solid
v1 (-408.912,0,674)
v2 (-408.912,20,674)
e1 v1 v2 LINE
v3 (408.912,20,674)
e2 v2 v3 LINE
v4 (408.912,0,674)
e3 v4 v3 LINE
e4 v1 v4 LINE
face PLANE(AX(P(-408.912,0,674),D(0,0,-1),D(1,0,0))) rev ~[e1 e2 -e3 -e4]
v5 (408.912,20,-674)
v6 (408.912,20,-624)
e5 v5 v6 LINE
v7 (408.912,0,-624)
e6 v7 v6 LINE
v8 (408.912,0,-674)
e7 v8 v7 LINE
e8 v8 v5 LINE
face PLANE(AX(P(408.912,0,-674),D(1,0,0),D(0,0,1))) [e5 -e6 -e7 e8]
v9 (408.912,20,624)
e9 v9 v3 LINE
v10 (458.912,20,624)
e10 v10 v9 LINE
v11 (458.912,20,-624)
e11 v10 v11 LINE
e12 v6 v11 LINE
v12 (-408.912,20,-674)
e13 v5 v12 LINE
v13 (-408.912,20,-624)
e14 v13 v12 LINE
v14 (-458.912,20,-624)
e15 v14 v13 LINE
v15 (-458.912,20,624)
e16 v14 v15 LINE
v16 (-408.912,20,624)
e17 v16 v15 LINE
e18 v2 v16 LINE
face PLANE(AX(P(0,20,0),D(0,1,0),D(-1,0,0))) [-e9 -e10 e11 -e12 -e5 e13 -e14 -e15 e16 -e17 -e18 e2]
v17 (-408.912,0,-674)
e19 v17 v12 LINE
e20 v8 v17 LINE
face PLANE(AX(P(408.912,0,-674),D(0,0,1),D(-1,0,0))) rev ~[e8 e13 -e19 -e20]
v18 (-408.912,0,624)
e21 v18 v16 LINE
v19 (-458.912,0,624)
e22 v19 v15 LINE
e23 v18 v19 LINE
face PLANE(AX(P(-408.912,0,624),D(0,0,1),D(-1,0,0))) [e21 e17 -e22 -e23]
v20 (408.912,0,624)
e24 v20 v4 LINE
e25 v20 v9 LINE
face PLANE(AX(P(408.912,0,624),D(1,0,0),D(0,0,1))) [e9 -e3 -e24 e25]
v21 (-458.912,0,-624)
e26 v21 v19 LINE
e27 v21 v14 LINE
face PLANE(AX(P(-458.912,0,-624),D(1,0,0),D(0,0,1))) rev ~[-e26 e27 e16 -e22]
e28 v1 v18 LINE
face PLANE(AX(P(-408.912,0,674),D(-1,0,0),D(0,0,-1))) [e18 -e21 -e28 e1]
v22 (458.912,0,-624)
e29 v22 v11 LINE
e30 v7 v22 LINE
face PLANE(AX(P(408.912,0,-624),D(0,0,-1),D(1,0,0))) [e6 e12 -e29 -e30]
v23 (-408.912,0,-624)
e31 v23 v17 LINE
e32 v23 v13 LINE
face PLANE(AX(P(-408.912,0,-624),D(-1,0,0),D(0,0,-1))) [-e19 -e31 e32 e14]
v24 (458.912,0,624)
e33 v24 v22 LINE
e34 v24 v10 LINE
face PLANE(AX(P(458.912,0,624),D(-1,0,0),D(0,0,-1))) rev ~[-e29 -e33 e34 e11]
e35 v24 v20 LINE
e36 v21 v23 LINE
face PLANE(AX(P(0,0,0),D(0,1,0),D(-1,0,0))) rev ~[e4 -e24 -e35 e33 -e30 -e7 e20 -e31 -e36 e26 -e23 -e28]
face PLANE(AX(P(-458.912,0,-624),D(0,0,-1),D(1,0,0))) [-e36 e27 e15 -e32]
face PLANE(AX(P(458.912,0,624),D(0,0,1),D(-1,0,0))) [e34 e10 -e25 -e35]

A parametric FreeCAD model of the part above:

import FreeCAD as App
import Part
import Sketcher

doc = App.newDocument("Part")
body = doc.addObject("PartDesign::Body", "Body")

# Sketch on XZ plane
sketch1 = doc.addObject("Sketcher::SketchObject", "Sketch")
body.addObject(sketch1)
sketch1.AttachmentSupport = (doc.XZ_Plane, [""])
sketch1.MapMode = "FlatFace"
sketch1.addGeometry(Part.LineSegment(App.Vector(-409, 624, 0), App.Vector(-409, 674, 0)), False)
sketch1.addGeometry(Part.LineSegment(App.Vector(-409, 674, 0), App.Vector(409, 674, 0)), False)
sketch1.addGeometry(Part.LineSegment(App.Vector(409, 674, 0), App.Vector(409, 624, 0)), False)
sketch1.addGeometry(Part.LineSegment(App.Vector(409, 624, 0), App.Vector(459, 624, 0)), False)
sketch1.addGeometry(Part.LineSegment(App.Vector(459, 624, 0), App.Vector(459, -624, 0)), False)
sketch1.addGeometry(Part.LineSegment(App.Vector(459, -624, 0), App.Vector(409, -624, 0)), False)
sketch1.addGeometry(Part.LineSegment(App.Vector(409, -624, 0), App.Vector(409, -674, 0)), False)
sketch1.addGeometry(Part.LineSegment(App.Vector(409, -674, 0), App.Vector(-409, -674, 0)), False)
sketch1.addGeometry(Part.LineSegment(App.Vector(-409, -674, 0), App.Vector(-409, -624, 0)), False)
sketch1.addGeometry(Part.LineSegment(App.Vector(-409, -624, 0), App.Vector(-459, -624, 0)), False)
sketch1.addGeometry(Part.LineSegment(App.Vector(-459, -624, 0), App.Vector(-459, 624, 0)), False)
sketch1.addGeometry(Part.LineSegment(App.Vector(-459, 624, 0), App.Vector(-409, 624, 0)), False)
sketch1.addConstraint(Sketcher.Constraint("Coincident", 0, 2, 1, 1))
sketch1.addConstraint(Sketcher.Constraint("Coincident", 1, 2, 2, 1))
sketch1.addConstraint(Sketcher.Constraint("Coincident", 2, 2, 3, 1))
sketch1.addConstraint(Sketcher.Constraint("Coincident", 3, 2, 4, 1))
sketch1.addConstraint(Sketcher.Constraint("Coincident", 4, 2, 5, 1))
sketch1.addConstraint(Sketcher.Constraint("Coincident", 5, 2, 6, 1))
sketch1.addConstraint(Sketcher.Constraint("Coincident", 6, 2, 7, 1))
sketch1.addConstraint(Sketcher.Constraint("Coincident", 7, 2, 8, 1))
sketch1.addConstraint(Sketcher.Constraint("Coincident", 8, 2, 9, 1))
sketch1.addConstraint(Sketcher.Constraint("Coincident", 9, 2, 10, 1))
sketch1.addConstraint(Sketcher.Constraint("Coincident", 10, 2, 11, 1))
sketch1.addConstraint(Sketcher.Constraint("Coincident", 11, 2, 0, 1))
sketch1.addConstraint(Sketcher.Constraint("Vertical", 0))
sketch1.addConstraint(Sketcher.Constraint("Horizontal", 1))
sketch1.addConstraint(Sketcher.Constraint("Vertical", 2))
sketch1.addConstraint(Sketcher.Constraint("Horizontal", 3))
sketch1.addConstraint(Sketcher.Constraint("Vertical", 4))
sketch1.addConstraint(Sketcher.Constraint("Horizontal", 5))
sketch1.addConstraint(Sketcher.Constraint("Vertical", 6))
sketch1.addConstraint(Sketcher.Constraint("Horizontal", 7))
sketch1.addConstraint(Sketcher.Constraint("Vertical", 8))
sketch1.addConstraint(Sketcher.Constraint("Horizontal", 9))
sketch1.addConstraint(Sketcher.Constraint("Vertical", 10))
sketch1.addConstraint(Sketcher.Constraint("Horizontal", 11))
sketch1.addConstraint(Sketcher.Constraint("Symmetric", 0, 2, 6, 2, -1, 1))
sketch1.addConstraint(Sketcher.Constraint("Symmetric", 2, 2, 8, 2, -1, 1))
sketch1.addConstraint(Sketcher.Constraint("Symmetric", 4, 2, 10, 2, -1, 1))
sketch1.addConstraint(Sketcher.Constraint("Symmetric", 5, 2, 8, 2, -2))
sketch1.addConstraint(Sketcher.Constraint("Equal", 11, 0))
sketch1.addConstraint(Sketcher.Constraint("DistanceX", 3, 1, 3, 2, 50.0))
sketch1.addConstraint(Sketcher.Constraint("DistanceY", 4, 2, 4, 1, 1248.0))
sketch1.addConstraint(Sketcher.Constraint("DistanceX", 1, 1, 1, 2, 817.824))
pad1 = doc.addObject("PartDesign::Pad", "Pad")
body.addObject(pad1)
pad1.Profile = sketch1
pad1.Length = 20
pad1.Reversed = True

doc.recompute()
